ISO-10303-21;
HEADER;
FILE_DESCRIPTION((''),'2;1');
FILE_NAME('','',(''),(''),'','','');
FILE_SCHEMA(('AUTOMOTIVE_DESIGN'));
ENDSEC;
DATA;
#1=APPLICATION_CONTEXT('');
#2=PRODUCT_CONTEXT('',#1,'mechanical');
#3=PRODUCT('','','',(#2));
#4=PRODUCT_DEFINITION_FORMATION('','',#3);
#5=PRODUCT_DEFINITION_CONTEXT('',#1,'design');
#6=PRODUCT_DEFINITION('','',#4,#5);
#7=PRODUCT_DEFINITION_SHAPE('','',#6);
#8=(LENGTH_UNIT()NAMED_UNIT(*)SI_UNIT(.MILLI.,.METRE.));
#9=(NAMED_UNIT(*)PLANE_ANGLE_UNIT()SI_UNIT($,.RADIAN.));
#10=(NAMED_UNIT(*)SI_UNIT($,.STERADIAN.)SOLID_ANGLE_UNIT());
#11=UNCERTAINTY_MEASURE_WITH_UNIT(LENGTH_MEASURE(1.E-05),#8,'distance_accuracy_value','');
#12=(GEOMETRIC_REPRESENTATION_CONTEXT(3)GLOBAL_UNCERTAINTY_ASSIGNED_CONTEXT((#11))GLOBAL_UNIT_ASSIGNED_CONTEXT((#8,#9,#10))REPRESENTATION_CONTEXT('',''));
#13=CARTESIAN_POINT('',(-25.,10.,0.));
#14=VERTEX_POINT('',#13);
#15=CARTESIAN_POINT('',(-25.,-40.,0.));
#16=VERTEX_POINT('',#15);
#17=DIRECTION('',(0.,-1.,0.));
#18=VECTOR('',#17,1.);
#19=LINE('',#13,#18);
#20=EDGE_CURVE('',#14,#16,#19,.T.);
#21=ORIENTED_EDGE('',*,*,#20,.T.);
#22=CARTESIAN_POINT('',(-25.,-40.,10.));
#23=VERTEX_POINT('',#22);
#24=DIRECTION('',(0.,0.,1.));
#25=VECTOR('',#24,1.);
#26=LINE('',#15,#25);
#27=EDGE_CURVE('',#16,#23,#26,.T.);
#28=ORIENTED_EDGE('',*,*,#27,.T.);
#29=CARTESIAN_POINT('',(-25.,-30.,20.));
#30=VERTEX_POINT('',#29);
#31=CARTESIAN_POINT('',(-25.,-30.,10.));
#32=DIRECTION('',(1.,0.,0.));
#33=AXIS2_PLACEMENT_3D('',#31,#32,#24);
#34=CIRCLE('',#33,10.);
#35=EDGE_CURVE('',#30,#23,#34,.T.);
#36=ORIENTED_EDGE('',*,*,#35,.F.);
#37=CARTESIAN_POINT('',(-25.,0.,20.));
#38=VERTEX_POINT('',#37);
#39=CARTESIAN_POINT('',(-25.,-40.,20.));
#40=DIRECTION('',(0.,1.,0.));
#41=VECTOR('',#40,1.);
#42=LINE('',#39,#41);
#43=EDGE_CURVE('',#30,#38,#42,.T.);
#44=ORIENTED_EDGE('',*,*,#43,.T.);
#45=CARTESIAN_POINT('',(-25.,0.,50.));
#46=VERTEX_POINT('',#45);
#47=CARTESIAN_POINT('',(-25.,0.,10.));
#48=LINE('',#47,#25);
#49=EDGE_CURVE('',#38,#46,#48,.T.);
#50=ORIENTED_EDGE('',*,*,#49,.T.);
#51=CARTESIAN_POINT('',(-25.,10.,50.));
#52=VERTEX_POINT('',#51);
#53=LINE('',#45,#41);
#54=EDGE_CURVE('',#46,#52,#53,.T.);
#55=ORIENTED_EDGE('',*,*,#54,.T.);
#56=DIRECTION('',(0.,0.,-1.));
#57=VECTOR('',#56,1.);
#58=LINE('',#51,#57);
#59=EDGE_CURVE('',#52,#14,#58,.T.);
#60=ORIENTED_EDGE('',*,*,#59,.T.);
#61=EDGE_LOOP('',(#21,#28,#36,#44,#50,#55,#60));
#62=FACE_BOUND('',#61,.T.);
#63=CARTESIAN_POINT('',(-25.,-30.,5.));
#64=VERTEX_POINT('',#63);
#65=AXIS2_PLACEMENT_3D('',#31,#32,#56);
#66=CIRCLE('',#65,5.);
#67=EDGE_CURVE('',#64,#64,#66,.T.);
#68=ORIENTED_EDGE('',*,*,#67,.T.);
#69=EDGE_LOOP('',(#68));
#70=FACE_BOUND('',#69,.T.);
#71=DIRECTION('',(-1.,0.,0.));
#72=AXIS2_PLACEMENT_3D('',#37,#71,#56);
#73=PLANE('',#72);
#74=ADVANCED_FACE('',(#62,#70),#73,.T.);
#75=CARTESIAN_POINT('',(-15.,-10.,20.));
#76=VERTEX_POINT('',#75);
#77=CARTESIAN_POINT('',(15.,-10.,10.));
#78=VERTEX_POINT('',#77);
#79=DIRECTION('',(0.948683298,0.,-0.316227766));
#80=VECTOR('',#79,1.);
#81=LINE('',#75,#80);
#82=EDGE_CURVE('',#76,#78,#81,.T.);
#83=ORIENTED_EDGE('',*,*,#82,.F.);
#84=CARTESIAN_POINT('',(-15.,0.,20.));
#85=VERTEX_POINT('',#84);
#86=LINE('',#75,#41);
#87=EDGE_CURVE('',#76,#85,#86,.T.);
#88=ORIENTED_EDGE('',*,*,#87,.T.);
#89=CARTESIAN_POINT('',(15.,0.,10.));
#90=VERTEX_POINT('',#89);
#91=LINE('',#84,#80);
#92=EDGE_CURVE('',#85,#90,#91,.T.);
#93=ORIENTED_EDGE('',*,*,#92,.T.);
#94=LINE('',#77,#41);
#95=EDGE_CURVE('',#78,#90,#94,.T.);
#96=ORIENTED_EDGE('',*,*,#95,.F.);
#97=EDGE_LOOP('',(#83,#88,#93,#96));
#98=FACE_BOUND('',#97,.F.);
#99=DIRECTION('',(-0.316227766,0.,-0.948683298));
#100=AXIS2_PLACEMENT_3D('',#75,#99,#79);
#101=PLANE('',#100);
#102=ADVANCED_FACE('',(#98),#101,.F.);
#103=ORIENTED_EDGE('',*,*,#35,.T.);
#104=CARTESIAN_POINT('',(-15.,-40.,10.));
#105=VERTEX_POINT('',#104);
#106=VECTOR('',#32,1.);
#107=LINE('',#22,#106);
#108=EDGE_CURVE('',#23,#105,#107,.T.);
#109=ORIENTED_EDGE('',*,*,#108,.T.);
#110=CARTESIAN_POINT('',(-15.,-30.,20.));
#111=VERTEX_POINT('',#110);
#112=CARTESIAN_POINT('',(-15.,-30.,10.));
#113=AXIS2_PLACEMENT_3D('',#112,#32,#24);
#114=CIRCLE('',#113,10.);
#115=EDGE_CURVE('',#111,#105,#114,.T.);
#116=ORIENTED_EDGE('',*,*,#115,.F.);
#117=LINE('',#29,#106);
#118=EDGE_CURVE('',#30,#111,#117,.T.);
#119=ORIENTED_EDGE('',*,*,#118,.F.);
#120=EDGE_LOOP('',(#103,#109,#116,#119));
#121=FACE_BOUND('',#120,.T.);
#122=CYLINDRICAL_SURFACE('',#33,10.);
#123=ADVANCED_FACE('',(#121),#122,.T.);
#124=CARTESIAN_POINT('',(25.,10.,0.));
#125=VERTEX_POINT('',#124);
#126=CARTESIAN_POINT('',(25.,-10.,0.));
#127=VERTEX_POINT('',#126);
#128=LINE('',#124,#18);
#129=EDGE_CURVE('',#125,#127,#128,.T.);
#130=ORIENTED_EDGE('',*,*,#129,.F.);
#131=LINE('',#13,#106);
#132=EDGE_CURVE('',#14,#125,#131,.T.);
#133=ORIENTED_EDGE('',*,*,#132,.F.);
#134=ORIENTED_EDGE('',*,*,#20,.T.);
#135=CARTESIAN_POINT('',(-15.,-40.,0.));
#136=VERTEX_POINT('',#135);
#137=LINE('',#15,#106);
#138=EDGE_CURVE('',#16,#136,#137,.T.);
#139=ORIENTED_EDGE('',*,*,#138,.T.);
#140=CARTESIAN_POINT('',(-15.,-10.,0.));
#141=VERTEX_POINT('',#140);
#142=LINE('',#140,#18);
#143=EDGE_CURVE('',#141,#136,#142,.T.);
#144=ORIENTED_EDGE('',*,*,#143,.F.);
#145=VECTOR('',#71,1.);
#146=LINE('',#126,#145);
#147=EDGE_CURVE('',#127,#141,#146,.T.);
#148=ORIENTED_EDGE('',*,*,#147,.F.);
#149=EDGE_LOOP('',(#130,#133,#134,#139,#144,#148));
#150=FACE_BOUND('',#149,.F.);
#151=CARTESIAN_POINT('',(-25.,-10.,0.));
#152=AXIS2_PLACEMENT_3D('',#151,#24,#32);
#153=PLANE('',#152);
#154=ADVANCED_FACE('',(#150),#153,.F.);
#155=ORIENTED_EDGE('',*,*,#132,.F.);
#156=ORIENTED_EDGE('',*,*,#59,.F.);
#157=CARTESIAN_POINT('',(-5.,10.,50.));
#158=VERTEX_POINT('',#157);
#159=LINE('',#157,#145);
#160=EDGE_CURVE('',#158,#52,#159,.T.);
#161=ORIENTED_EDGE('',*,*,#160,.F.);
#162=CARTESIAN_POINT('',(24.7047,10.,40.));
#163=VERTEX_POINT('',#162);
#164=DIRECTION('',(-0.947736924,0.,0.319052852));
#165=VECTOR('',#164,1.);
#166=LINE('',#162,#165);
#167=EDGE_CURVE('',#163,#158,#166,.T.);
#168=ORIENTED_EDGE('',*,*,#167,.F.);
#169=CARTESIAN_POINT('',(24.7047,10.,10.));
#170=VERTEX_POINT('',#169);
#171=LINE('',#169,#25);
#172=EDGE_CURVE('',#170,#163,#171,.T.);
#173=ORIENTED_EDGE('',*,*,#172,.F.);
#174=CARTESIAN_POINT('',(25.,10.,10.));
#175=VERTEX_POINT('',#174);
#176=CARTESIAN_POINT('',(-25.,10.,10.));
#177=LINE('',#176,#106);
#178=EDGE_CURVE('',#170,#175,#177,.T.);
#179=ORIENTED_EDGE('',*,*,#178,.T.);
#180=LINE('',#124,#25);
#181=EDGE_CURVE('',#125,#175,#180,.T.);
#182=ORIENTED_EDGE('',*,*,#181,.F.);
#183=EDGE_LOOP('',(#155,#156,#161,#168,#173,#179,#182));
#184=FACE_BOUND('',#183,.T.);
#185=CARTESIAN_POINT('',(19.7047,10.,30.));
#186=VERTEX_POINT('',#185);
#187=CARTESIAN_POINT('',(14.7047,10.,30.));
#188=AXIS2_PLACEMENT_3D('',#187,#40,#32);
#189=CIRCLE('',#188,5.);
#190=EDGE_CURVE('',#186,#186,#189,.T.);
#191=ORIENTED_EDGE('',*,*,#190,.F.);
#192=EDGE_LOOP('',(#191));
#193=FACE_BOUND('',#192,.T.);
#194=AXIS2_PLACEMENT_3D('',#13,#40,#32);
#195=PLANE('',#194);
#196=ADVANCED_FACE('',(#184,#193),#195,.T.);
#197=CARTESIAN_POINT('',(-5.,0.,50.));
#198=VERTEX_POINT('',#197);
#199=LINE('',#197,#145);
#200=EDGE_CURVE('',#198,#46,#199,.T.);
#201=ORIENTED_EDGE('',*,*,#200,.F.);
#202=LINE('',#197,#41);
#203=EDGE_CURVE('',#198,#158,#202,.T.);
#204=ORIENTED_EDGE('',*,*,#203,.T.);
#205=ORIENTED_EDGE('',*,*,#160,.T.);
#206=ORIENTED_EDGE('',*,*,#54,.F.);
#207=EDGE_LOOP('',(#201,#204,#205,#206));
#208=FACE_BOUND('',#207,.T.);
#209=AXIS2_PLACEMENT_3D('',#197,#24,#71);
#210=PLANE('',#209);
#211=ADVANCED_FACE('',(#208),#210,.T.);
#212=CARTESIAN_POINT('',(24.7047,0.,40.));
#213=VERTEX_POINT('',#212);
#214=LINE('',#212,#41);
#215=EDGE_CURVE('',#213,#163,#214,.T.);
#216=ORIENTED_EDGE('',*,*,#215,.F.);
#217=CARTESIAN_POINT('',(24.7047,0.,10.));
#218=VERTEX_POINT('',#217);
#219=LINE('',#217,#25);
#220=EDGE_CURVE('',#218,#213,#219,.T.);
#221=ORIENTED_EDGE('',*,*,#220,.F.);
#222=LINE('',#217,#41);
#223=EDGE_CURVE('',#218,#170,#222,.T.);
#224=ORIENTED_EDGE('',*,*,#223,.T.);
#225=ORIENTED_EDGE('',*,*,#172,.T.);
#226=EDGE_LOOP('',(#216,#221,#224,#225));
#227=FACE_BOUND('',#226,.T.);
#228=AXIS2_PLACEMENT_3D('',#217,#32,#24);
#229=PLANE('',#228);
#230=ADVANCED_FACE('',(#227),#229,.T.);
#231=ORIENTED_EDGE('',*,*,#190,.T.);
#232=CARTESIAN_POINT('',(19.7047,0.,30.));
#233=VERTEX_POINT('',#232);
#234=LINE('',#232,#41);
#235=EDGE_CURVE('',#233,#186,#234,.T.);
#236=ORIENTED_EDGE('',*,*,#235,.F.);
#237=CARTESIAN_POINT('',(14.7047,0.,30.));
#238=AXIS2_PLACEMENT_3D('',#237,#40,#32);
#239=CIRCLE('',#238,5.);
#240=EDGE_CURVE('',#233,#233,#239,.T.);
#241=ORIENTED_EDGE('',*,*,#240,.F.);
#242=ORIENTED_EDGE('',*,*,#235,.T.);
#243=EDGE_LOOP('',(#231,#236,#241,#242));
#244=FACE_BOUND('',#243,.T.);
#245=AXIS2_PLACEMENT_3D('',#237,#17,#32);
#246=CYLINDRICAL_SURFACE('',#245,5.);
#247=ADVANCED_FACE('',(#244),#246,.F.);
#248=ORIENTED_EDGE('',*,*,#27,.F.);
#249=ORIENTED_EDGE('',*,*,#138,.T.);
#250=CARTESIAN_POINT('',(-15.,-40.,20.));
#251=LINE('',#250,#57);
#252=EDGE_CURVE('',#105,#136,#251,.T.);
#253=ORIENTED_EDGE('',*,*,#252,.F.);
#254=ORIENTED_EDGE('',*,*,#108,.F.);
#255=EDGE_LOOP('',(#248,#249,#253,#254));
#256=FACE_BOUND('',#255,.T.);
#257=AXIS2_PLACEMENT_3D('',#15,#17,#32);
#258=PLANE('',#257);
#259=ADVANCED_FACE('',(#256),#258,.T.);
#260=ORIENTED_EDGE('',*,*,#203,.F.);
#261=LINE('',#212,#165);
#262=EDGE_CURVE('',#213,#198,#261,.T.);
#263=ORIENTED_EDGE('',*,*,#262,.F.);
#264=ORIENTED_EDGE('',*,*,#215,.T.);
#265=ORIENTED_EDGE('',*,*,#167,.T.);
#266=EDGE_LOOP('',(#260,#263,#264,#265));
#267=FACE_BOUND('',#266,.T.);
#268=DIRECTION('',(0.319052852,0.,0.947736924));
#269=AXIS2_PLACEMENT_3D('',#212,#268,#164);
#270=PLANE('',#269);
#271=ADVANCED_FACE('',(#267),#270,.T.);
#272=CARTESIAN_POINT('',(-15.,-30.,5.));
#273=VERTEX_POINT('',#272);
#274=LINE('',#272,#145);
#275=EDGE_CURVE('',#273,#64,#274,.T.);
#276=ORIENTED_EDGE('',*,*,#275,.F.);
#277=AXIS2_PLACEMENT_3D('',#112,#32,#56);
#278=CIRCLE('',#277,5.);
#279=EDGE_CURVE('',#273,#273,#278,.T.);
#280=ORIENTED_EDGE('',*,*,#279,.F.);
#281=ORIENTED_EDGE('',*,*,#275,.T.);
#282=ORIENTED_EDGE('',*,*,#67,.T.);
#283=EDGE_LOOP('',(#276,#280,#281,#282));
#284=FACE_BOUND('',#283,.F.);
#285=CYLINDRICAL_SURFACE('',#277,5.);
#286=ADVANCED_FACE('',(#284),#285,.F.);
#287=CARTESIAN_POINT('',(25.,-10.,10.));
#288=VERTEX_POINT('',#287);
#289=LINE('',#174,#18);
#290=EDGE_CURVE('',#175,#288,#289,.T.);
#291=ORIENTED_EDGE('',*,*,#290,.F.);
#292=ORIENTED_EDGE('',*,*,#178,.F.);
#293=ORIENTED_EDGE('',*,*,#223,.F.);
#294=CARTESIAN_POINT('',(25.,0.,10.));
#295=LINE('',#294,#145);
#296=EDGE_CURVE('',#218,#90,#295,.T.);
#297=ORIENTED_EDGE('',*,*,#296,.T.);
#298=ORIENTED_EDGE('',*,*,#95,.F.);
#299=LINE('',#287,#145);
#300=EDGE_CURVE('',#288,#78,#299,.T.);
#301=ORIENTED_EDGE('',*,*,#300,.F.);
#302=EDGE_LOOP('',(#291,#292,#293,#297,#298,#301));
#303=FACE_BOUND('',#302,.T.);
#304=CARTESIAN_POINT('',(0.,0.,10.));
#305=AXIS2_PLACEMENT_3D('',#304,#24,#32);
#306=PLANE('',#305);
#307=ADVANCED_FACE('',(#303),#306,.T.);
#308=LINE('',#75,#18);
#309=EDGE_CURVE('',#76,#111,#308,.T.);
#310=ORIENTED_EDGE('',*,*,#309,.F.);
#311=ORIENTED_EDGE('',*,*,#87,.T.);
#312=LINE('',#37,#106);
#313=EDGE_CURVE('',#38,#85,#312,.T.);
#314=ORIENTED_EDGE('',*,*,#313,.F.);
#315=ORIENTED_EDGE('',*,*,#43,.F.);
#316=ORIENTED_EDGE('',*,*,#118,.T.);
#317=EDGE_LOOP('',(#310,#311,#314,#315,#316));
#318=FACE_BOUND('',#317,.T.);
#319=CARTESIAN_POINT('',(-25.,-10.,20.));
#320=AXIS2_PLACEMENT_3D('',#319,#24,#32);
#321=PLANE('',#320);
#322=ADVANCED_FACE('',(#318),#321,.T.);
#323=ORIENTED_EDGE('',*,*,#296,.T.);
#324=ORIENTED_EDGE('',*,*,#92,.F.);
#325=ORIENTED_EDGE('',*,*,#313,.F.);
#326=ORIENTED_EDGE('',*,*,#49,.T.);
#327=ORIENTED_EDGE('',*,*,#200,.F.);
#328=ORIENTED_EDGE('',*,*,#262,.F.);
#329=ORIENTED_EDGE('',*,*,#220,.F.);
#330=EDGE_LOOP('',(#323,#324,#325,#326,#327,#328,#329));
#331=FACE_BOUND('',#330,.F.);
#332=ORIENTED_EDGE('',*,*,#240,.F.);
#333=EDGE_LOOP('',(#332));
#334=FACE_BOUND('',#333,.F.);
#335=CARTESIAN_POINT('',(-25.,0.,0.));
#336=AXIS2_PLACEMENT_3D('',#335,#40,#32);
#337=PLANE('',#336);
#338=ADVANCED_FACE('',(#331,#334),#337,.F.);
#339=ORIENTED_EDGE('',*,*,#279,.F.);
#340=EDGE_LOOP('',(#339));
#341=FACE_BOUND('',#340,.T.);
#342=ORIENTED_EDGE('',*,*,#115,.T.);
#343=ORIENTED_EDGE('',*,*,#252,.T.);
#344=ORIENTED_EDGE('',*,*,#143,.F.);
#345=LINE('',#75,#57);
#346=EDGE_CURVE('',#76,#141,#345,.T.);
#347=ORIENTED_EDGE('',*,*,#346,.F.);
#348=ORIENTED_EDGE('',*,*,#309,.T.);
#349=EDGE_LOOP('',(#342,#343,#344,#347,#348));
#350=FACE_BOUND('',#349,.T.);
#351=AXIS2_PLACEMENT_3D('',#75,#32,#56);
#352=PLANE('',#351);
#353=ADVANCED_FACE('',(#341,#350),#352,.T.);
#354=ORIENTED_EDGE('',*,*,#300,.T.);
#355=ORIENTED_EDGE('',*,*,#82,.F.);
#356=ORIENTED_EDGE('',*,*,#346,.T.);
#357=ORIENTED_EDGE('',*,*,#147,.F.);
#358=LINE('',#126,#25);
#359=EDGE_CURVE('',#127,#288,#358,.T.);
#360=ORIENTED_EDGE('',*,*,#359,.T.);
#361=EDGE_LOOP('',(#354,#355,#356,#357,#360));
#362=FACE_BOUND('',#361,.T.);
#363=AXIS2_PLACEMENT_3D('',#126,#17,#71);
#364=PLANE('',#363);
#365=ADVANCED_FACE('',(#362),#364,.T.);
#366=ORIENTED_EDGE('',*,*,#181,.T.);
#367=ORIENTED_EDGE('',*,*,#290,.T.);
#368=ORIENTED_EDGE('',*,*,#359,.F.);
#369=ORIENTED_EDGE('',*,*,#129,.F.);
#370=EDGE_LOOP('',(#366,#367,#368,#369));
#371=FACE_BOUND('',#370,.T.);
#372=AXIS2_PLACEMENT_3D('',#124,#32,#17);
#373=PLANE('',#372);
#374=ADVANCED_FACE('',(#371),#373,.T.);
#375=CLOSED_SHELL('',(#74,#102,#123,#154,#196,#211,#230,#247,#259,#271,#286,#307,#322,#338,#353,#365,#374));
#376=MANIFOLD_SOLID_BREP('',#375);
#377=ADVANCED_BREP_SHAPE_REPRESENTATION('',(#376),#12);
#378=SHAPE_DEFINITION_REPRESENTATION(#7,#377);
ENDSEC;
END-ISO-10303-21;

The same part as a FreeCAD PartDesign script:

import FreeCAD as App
import Part
import Sketcher
from FreeCAD import Vector
Q = App.Units.Quantity


def edges_at(feature, points):
    """Names of the edges that pass closest to the given points."""
    edges = feature.Shape.Edges
    near = lambda p: min(range(len(edges)), key=lambda i: edges[i].distToShape(Part.Vertex(*p))[0])
    return sorted({f"Edge{near(p) + 1}" for p in points})


def add_polygon(sketch, points):
    """Adds a closed chain of lines whose ends are joined by coincident constraints."""
    first, n = sketch.GeometryCount, len(points)
    for a, b in zip(points, points[1:] + points[:1]):
        sketch.addGeometry(Part.LineSegment(App.Vector(*a, 0), App.Vector(*b, 0)), False)
    for i in range(n):
        sketch.addConstraint(Sketcher.Constraint("Coincident", first + i, 2, first + (i + 1) % n, 1))

doc = App.newDocument("Part")
body = doc.addObject("PartDesign::Body", "Body")

sketch1 = body.newObject("Sketcher::SketchObject", "Sketch")
sketch1.AttachmentSupport = (doc.getObject("XY_Plane"), [""])
sketch1.MapMode = "FlatFace"
add_polygon(sketch1, [(-25, -10), (25, -10), (25, 10), (-25, 10)])
sketch1.addConstraint(Sketcher.Constraint("Horizontal", 0))
sketch1.addConstraint(Sketcher.Constraint("Vertical", 1))
sketch1.addConstraint(Sketcher.Constraint("Horizontal", 2))
sketch1.addConstraint(Sketcher.Constraint("Vertical", 3))
sketch1.addConstraint(Sketcher.Constraint("Symmetric", 0, 2, 2, 2, -1, 1))
sketch1.addConstraint(Sketcher.Constraint("DistanceX", 0, 1, 0, 2, Q("1.9685 in")))
sketch1.addConstraint(Sketcher.Constraint("DistanceY", 1, 1, 1, 2, Q("0.7874 in")))
pad1 = body.newObject("PartDesign::Pad", "Pad")
pad1.Profile = sketch1
pad1.Length = Q("0.3937008 in")

sketch2 = body.newObject("Sketcher::SketchObject", "Sketch001")
sketch2.AttachmentSupport = (doc.getObject("XZ_Plane"), [""])
sketch2.MapMode = "FlatFace"
sketch2.AttachmentOffset = App.Placement(Vector(0, 0, 0.3937008 * 25.4), App.Rotation())
add_polygon(sketch2, [(-25, 20), (-25, 10), (15, 10), (-15, 20)])
sketch2.addConstraint(Sketcher.Constraint("Vertical", 0))
sketch2.addConstraint(Sketcher.Constraint("Horizontal", 1))
sketch2.addConstraint(Sketcher.Constraint("Horizontal", 3))
sketch2.addConstraint(Sketcher.Constraint("Equal", 3, 0))
sketch2.addConstraint(Sketcher.Constraint("DistanceX", 1, 1, 1, 2, Q("1.5748 in")))
sketch2.addConstraint(Sketcher.Constraint("DistanceX", 3, 2, 3, 1, Q("0.3937 in")))
sketch2.addConstraint(Sketcher.Constraint("DistanceY", -1, 1, 0, 2, Q("0.3937 in")))
sketch2.addConstraint(Sketcher.Constraint("DistanceX", 0, 2, -1, 1, Q("25 mm")))
pad2 = body.newObject("PartDesign::Pad", "Pad001")
pad2.Profile = sketch2
pad2.Length = Q("0.3937008 in")
pad2.Reversed = True

sketch3 = body.newObject("Sketcher::SketchObject", "Sketch002")
sketch3.AttachmentSupport = (doc.getObject("XZ_Plane"), [""])
sketch3.MapMode = "FlatFace"
sketch3.AttachmentOffset = App.Placement(Vector(0, 0, 0.3937008 * 25.4), App.Rotation())
add_polygon(sketch3, [(-25, 20), (-25, 0), (-15, 0), (-15, 20)])
sketch3.addConstraint(Sketcher.Constraint("Vertical", 0))
sketch3.addConstraint(Sketcher.Constraint("Horizontal", 1))
sketch3.addConstraint(Sketcher.Constraint("Vertical", 2))
sketch3.addConstraint(Sketcher.Constraint("Horizontal", 3))
sketch3.addConstraint(Sketcher.Constraint("PointOnObject", 0, 2, -1))
sketch3.addConstraint(Sketcher.Constraint("DistanceX", 1, 1, 1, 2, Q("0.3937 in")))
sketch3.addConstraint(Sketcher.Constraint("DistanceY", 0, 2, 0, 1, Q("0.7874 in")))
sketch3.addConstraint(Sketcher.Constraint("DistanceX", 0, 2, -1, 1, Q("25 mm")))
pad3 = body.newObject("PartDesign::Pad", "Pad002")
pad3.Profile = sketch3
pad3.Length = Q("1.1811024 in")
doc.recompute()

fillet = body.newObject("PartDesign::Fillet", "Fillet")
fillet.Base = (pad3, edges_at(pad3, [(-20, -40, 20)]))
fillet.Radius = Q("0.3937008 in")

sketch4 = body.newObject("Sketcher::SketchObject", "Sketch003")
sketch4.AttachmentSupport = (doc.getObject("YZ_Plane"), [""])
sketch4.MapMode = "FlatFace"
sketch4.AttachmentOffset = App.Placement(Vector(0, 0, -15), App.Rotation())
sketch4.addGeometry(Part.Circle(Vector(-30, 10, 0), Vector(0, 0, 1), 5), False)
sketch4.addConstraint(Sketcher.Constraint("Diameter", 0, Q("0.3937 in")))
sketch4.addConstraint(Sketcher.Constraint("DistanceY", -1, 1, 0, 3, Q("0.3937 in")))
sketch4.addConstraint(Sketcher.Constraint("DistanceX", 0, 3, -1, 1, Q("1.1811 in")))
pocket1 = body.newObject("PartDesign::Pocket", "Pocket")
pocket1.Profile = sketch4
pocket1.Length = Q("1.1811024 in")

sketch5 = body.newObject("Sketcher::SketchObject", "Sketch004")
sketch5.AttachmentSupport = (doc.getObject("XZ_Plane"), [""])
sketch5.MapMode = "FlatFace"
add_polygon(sketch5, [(-25, 10), (-25, 50), (-5, 50), (25, 40), (25, 10)])
sketch5.addGeometry(Part.Circle(Vector(15, 30, 0), Vector(0, 0, 1), 5), False)
sketch5.addConstraint(Sketcher.Constraint("Vertical", 0))
sketch5.addConstraint(Sketcher.Constraint("Horizontal", 1))
sketch5.addConstraint(Sketcher.Constraint("Vertical", 3))
sketch5.addConstraint(Sketcher.Constraint("Horizontal", 4))
sketch5.addConstraint(Sketcher.Constraint("Diameter", 5, Q("0.3937 in")))
sketch5.addConstraint(Sketcher.Constraint("DistanceX", 1, 1, 1, 2, Q("0.7874 in")))
sketch5.addConstraint(Sketcher.Constraint("DistanceY", 0, 1, 0, 2, Q("1.5748 in")))
sketch5.addConstraint(Sketcher.Constraint("DistanceY", 3, 2, 3, 1, Q("1.1811 in")))
sketch5.addConstraint(Sketcher.Constraint("DistanceY", -1, 1, 5, 3, Q("1.1811 in")))
sketch5.addConstraint(Sketcher.Constraint("DistanceY", -1, 1, 2, 2, Q("1.5748 in")))
sketch5.addConstraint(Sketcher.Constraint("DistanceX", 5, 3, 2, 2, Q("0.3937 in")))
sketch5.addConstraint(Sketcher.Constraint("DistanceX", 4, 2, 4, 1, Q("49.7047 mm")))
sketch5.addConstraint(Sketcher.Constraint("DistanceX", -1, 1, 5, 3, Q("14.7047 mm")))
pad4 = body.newObject("PartDesign::Pad", "Pad003")
pad4.Profile = sketch5
pad4.Length = Q("0.3937008 in")
pad4.Reversed = True

doc.recompute()
